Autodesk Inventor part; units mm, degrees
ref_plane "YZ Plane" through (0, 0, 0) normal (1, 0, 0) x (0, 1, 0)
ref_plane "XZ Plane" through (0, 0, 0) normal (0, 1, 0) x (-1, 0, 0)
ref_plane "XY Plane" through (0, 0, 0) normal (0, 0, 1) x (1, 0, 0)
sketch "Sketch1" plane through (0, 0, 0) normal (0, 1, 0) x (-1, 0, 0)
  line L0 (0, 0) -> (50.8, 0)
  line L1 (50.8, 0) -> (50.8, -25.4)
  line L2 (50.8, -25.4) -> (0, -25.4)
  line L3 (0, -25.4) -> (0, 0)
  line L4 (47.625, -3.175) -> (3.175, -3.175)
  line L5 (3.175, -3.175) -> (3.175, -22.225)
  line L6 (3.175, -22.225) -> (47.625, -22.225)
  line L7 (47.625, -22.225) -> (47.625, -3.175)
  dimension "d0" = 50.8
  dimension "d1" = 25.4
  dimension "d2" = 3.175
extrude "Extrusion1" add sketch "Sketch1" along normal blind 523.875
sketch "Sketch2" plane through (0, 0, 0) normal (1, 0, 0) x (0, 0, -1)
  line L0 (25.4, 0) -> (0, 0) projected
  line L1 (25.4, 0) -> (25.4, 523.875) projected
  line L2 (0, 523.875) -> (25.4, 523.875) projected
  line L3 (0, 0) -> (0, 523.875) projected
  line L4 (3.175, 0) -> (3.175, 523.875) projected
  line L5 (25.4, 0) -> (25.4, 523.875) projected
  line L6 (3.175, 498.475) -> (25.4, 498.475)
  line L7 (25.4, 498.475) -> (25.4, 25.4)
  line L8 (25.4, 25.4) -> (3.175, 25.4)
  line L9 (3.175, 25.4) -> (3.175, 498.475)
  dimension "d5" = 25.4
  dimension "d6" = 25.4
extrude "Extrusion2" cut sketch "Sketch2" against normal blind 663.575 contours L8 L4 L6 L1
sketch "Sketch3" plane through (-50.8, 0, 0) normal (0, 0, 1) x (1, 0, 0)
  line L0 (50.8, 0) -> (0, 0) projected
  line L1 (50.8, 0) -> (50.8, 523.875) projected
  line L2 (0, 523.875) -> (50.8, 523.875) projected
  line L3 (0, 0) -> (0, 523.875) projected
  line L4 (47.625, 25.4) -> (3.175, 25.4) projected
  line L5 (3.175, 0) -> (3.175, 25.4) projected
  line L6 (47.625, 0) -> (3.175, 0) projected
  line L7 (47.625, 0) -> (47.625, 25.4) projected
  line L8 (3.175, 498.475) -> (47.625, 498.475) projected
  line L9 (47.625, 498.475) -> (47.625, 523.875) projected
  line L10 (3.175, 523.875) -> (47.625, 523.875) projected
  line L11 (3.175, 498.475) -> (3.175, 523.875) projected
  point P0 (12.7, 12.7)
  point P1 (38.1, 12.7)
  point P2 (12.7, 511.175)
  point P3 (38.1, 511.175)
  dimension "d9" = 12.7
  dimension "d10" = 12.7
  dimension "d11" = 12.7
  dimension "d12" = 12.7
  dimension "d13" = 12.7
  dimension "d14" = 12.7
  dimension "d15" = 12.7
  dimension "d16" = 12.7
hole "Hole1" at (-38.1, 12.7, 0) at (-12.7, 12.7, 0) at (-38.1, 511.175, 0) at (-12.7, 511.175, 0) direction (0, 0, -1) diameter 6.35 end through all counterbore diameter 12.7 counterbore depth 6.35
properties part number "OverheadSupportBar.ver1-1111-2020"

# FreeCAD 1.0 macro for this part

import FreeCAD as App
import Part
import Sketcher
from FreeCAD import Vector
Q = App.Units.Quantity

doc = App.newDocument("Part")
body = doc.addObject("PartDesign::Body", "Body")

# Sketch on XZ plane
sketch1 = doc.addObject("Sketcher::SketchObject", "Sketch")
body.addObject(sketch1)
sketch1.AttachmentSupport = (doc.XZ_Plane, [""])
sketch1.MapMode = "FlatFace"
sketch1.addGeometry(Part.LineSegment(Vector(-51, 0, 0), Vector(0, 0, 0)), False)
sketch1.addGeometry(Part.LineSegment(Vector(0, 0, 0), Vector(0, -25, 0)), False)
sketch1.addGeometry(Part.LineSegment(Vector(0, -25, 0), Vector(-51, -25, 0)), False)
sketch1.addGeometry(Part.LineSegment(Vector(-51, -25, 0), Vector(-51, 0, 0)), False)
sketch1.addGeometry(Part.LineSegment(Vector(-3, -3, 0), Vector(-48, -3, 0)), False)
sketch1.addGeometry(Part.LineSegment(Vector(-48, -3, 0), Vector(-48, -22, 0)), False)
sketch1.addGeometry(Part.LineSegment(Vector(-48, -22, 0), Vector(-3, -22, 0)), False)
sketch1.addGeometry(Part.LineSegment(Vector(-3, -22, 0), Vector(-3, -3, 0)), False)
sketch1.addConstraint(Sketcher.Constraint("Coincident", 0, 2, 1, 1))
sketch1.addConstraint(Sketcher.Constraint("Coincident", 1, 2, 2, 1))
sketch1.addConstraint(Sketcher.Constraint("Coincident", 2, 2, 3, 1))
sketch1.addConstraint(Sketcher.Constraint("Coincident", 3, 2, 0, 1))
sketch1.addConstraint(Sketcher.Constraint("Coincident", 4, 2, 5, 1))
sketch1.addConstraint(Sketcher.Constraint("Coincident", 5, 2, 6, 1))
sketch1.addConstraint(Sketcher.Constraint("Coincident", 6, 2, 7, 1))
sketch1.addConstraint(Sketcher.Constraint("Coincident", 7, 2, 4, 1))
sketch1.addConstraint(Sketcher.Constraint("Horizontal", 0))
sketch1.addConstraint(Sketcher.Constraint("Vertical", 1))
sketch1.addConstraint(Sketcher.Constraint("Horizontal", 2))
sketch1.addConstraint(Sketcher.Constraint("Vertical", 3))
sketch1.addConstraint(Sketcher.Constraint("Horizontal", 4))
sketch1.addConstraint(Sketcher.Constraint("Vertical", 5))
sketch1.addConstraint(Sketcher.Constraint("Horizontal", 6))
sketch1.addConstraint(Sketcher.Constraint("Vertical", 7))
sketch1.addConstraint(Sketcher.Constraint("Coincident", 0, 2, -1, 1))
sketch1.addConstraint(Sketcher.Constraint("DistanceX", 0, 1, 0, 2, Q("2 in")))
sketch1.addConstraint(Sketcher.Constraint("DistanceY", 1, 2, 1, 1, Q("1 in")))
sketch1.addConstraint(Sketcher.Constraint("DistanceY", 4, 2, -1, 1, Q("0.125 in")))
sketch1.addConstraint(Sketcher.Constraint("DistanceX", 6, 2, -1, 1, Q("0.125 in")))
sketch1.addConstraint(Sketcher.Constraint("DistanceX", 3, 2, 4, 2, Q("0.125 in")))
sketch1.addConstraint(Sketcher.Constraint("DistanceY", 2, 2, 5, 2, Q("0.125 in")))
pad1 = doc.addObject("PartDesign::Pad", "Pad")
body.addObject(pad1)
pad1.Profile = sketch1
pad1.Length = Q("20.625 in")
pad1.Reversed = True

# Sketch on YZ plane
sketch2 = doc.addObject("Sketcher::SketchObject", "Sketch001")
body.addObject(sketch2)
sketch2.AttachmentSupport = (doc.YZ_Plane, [""])
sketch2.MapMode = "FlatFace"
sketch2.addGeometry(Part.LineSegment(Vector(25, -3, 0), Vector(25, -25, 0)), False)
sketch2.addGeometry(Part.LineSegment(Vector(25, -25, 0), Vector(498, -25, 0)), False)
sketch2.addGeometry(Part.LineSegment(Vector(498, -25, 0), Vector(498, -3, 0)), False)
sketch2.addGeometry(Part.LineSegment(Vector(498, -3, 0), Vector(25, -3, 0)), False)
sketch2.addConstraint(Sketcher.Constraint("Coincident", 0, 2, 1, 1))
sketch2.addConstraint(Sketcher.Constraint("Coincident", 1, 2, 2, 1))
sketch2.addConstraint(Sketcher.Constraint("Coincident", 2, 2, 3, 1))
sketch2.addConstraint(Sketcher.Constraint("Coincident", 3, 2, 0, 1))
sketch2.addConstraint(Sketcher.Constraint("Vertical", 0))
sketch2.addConstraint(Sketcher.Constraint("Horizontal", 1))
sketch2.addConstraint(Sketcher.Constraint("Vertical", 2))
sketch2.addConstraint(Sketcher.Constraint("Horizontal", 3))
sketch2.addConstraint(Sketcher.Constraint("DistanceX", -1, 1, 0, 2, Q("1 in")))
sketch2.addConstraint(Sketcher.Constraint("DistanceY", 0, 2, -1, 1, Q("1 in")))
sketch2.addConstraint(Sketcher.Constraint("DistanceX", 1, 1, 1, 2, Q("18.625 in")))
sketch2.addConstraint(Sketcher.Constraint("DistanceY", 0, 2, 0, 1, Q("0.875 in")))
pocket1 = doc.addObject("PartDesign::Pocket", "Pocket")
body.addObject(pocket1)
pocket1.Profile = sketch2
pocket1.Length = Q("26.125 in")

# Sketch on XY plane
sketch3 = doc.addObject("Sketcher::SketchObject", "Sketch002")
body.addObject(sketch3)
sketch3.AttachmentSupport = (doc.XY_Plane, [""])
sketch3.MapMode = "FlatFace"
sketch3.addGeometry(Part.Circle(Vector(-38.1, 12.7, 0), Vector(0, 0, 1), 3.2), False)
sketch3.addGeometry(Part.Circle(Vector(-12.7, 12.7, 0), Vector(0, 0, 1), 3.2), False)
sketch3.addGeometry(Part.Circle(Vector(-38.1, 511.2, 0), Vector(0, 0, 1), 3.2), False)
sketch3.addGeometry(Part.Circle(Vector(-12.7, 511.2, 0), Vector(0, 0, 1), 3.2), False)
sketch3.addConstraint(Sketcher.Constraint("Equal", 0, 1))
sketch3.addConstraint(Sketcher.Constraint("Equal", 1, 2))
sketch3.addConstraint(Sketcher.Constraint("Equal", 2, 3))
sketch3.addConstraint(Sketcher.Constraint("Horizontal", 0, 3, 1, 3))
sketch3.addConstraint(Sketcher.Constraint("Horizontal", 2, 3, 3, 3))
sketch3.addConstraint(Sketcher.Constraint("Vertical", 0, 3, 2, 3))
sketch3.addConstraint(Sketcher.Constraint("Vertical", 1, 3, 3, 3))
sketch3.addConstraint(Sketcher.Constraint("Diameter", 0, Q("0.25 in")))
sketch3.addConstraint(Sketcher.Constraint("DistanceX", 0, 3, 1, 3, Q("1 in")))
sketch3.addConstraint(Sketcher.Constraint("DistanceX", 0, 3, -1, 1, Q("1.5 in")))
sketch3.addConstraint(Sketcher.Constraint("DistanceY", -1, 1, 0, 3, Q("0.5 in")))
sketch3.addConstraint(Sketcher.Constraint("DistanceY", -1, 1, 2, 3, Q("20.125 in")))
doc.recompute()
hole = doc.addObject("PartDesign::Hole", "Hole")
body.addObject(hole)
hole.Profile = sketch3
hole.ThreadType = "None"
hole.Diameter = Q("0.25 in")
hole.DepthType = "ThroughAll"
hole.HoleCutType = "Counterbore"
hole.HoleCutDiameter = Q("0.5 in")
hole.HoleCutDepth = Q("0.25 in")

doc.recompute()
